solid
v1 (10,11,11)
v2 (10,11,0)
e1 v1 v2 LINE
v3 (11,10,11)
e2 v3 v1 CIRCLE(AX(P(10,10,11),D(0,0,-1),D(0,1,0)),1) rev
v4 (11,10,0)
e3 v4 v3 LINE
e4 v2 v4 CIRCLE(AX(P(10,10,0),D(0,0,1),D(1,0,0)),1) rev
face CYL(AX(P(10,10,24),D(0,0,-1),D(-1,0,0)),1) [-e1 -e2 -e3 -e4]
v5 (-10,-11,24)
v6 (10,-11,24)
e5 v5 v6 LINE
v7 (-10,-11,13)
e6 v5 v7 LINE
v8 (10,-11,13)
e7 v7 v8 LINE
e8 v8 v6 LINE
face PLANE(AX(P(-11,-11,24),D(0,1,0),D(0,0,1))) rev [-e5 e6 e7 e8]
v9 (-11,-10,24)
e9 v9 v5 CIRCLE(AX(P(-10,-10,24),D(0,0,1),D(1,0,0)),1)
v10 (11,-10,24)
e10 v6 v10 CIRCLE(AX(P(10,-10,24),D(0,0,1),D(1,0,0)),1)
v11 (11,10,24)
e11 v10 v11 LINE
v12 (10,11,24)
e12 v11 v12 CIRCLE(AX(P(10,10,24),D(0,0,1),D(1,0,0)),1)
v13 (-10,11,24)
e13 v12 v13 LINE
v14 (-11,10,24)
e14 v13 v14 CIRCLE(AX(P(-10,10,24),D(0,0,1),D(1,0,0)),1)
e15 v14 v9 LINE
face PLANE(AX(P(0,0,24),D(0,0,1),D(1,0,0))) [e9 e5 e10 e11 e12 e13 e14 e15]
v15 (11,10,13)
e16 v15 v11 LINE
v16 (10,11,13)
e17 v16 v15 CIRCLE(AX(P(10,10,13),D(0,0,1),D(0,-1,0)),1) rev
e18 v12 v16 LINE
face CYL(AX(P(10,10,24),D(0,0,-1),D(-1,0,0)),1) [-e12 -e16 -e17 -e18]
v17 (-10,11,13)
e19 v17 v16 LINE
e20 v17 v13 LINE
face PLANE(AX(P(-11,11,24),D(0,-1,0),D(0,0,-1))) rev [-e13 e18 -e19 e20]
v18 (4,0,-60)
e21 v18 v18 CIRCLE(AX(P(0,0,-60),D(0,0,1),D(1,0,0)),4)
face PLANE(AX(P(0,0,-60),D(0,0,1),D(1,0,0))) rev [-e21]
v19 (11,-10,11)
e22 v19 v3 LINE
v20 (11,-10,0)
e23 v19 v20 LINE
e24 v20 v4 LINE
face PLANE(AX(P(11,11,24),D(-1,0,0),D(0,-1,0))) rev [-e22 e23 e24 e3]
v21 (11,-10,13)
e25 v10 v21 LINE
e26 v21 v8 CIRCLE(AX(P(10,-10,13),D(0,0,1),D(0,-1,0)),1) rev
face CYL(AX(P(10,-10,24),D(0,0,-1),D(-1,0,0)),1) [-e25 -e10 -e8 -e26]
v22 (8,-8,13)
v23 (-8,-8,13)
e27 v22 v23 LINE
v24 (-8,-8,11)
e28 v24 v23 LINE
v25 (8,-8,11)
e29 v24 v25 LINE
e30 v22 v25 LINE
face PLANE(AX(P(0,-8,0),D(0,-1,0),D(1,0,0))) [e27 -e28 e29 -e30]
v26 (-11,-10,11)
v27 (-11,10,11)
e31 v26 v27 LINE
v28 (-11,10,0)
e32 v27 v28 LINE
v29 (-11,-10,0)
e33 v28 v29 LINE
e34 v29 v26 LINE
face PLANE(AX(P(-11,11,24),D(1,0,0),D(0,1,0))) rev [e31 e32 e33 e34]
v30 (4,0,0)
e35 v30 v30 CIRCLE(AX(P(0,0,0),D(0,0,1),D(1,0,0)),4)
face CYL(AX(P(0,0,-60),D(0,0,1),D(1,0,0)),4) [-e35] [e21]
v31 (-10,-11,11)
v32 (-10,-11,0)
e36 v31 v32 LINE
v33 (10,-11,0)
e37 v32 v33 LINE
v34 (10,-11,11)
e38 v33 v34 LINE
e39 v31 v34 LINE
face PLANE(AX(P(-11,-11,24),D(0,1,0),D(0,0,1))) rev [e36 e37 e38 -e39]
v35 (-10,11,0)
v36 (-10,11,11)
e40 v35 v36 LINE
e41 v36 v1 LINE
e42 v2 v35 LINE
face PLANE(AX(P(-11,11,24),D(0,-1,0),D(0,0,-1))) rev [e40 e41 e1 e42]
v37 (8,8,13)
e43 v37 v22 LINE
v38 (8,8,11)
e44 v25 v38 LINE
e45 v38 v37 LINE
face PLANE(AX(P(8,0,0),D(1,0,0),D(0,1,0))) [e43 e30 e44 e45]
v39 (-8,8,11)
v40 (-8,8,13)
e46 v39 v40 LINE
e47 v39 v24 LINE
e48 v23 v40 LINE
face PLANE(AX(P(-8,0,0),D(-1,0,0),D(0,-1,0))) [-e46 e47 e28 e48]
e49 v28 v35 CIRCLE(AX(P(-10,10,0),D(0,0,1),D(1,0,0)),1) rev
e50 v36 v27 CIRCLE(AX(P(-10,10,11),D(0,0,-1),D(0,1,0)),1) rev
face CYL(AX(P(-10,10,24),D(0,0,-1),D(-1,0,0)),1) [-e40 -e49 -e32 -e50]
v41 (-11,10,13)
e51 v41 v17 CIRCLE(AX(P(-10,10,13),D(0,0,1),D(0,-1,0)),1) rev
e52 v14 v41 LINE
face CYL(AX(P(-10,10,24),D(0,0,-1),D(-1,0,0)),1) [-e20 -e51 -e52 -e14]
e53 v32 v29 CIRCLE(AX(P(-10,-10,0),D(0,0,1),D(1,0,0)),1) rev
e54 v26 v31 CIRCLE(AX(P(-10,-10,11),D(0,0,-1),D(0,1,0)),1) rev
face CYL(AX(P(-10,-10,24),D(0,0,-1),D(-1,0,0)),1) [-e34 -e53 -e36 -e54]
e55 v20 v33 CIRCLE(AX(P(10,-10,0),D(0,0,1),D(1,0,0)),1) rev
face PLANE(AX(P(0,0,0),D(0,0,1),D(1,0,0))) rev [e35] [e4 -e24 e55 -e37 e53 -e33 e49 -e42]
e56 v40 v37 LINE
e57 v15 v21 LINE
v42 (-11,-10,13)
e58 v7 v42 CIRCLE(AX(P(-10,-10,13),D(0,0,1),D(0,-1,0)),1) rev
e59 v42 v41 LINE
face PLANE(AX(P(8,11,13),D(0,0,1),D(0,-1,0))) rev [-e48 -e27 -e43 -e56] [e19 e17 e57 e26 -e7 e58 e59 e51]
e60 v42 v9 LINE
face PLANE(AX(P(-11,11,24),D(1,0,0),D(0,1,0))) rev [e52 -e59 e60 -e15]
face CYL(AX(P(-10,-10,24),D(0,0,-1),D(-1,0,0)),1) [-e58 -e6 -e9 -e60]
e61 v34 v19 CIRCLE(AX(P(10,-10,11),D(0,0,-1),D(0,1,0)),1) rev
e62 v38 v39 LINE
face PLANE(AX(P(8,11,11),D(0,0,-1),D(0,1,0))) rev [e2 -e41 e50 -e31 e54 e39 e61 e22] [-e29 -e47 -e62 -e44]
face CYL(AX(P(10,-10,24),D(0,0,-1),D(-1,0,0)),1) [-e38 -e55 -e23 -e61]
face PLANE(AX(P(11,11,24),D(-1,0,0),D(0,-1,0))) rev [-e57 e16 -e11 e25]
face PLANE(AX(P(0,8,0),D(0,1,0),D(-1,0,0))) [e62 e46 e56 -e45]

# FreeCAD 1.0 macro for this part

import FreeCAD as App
import Part
import Sketcher
Q = App.Units.Quantity


def edges_at(feature, points):
    """Names of the edges that pass closest to the given points."""
    edges = feature.Shape.Edges
    near = lambda p: min(range(len(edges)), key=lambda i: edges[i].distToShape(Part.Vertex(*p))[0])
    return sorted({f"Edge{near(p) + 1}" for p in points})


def add_polygon(sketch, points):
    """Adds a closed chain of lines whose ends are joined by coincident constraints."""
    first, n = sketch.GeometryCount, len(points)
    for a, b in zip(points, points[1:] + points[:1]):
        sketch.addGeometry(Part.LineSegment(App.Vector(*a, 0), App.Vector(*b, 0)), False)
    for i in range(n):
        sketch.addConstraint(Sketcher.Constraint("Coincident", first + i, 2, first + (i + 1) % n, 1))

doc = App.newDocument("Part")
body = doc.addObject("PartDesign::Body", "Body")

sketch1 = body.newObject("Sketcher::SketchObject", "Sketch")
sketch1.AttachmentSupport = (doc.getObject("XY_Plane"), [""])
sketch1.MapMode = "FlatFace"
add_polygon(sketch1, [(-11, 11), (-11, -11), (11, -11), (11, 11)])
sketch1.addConstraint([
    Sketcher.Constraint("Vertical", 0),
    Sketcher.Constraint("Horizontal", 1),
    Sketcher.Constraint("Vertical", 2),
    Sketcher.Constraint("Horizontal", 3),
    Sketcher.Constraint("Symmetric", 0, 2, 2, 2, -1, 1),
    Sketcher.Constraint("Equal", 3, 0),
    Sketcher.Constraint("DistanceX", 1, 1, 1, 2, Q("22 mm")),
])
pad1 = body.newObject("PartDesign::Pad", "Pad")
pad1.Profile = sketch1
pad1.Length = 24

sketch2 = body.newObject("Sketcher::SketchObject", "Sketch001")
sketch2.AttachmentSupport = (doc.getObject("YZ_Plane"), [""])
sketch2.MapMode = "FlatFace"
sketch2.AttachmentOffset = App.Placement(App.Vector(0, 0, 11), App.Rotation())
add_polygon(sketch2, [(11, 13), (-11, 13), (-11, 11), (11, 11)])
sketch2.addConstraint([
    Sketcher.Constraint("Horizontal", 0),
    Sketcher.Constraint("Vertical", 1),
    Sketcher.Constraint("Horizontal", 2),
    Sketcher.Constraint("Vertical", 3),
    Sketcher.Constraint("DistanceX", 0, 2, 0, 1, Q("22 mm")),
    Sketcher.Constraint("DistanceY", 1, 2, 1, 1, Q("2 mm")),
    Sketcher.Constraint("DistanceX", 0, 2, -1, 1, Q("11 mm")),
    Sketcher.Constraint("DistanceY", -1, 1, 0, 2, Q("13 mm")),
])
pocket1 = body.newObject("PartDesign::Pocket", "Pocket")
pocket1.Profile = sketch2
pocket1.Length = 3
doc.recompute()

polarpattern = body.newObject("PartDesign::PolarPattern", "PolarPattern")
polarpattern.Originals = [pocket1]
polarpattern.Axis = (doc.getObject("Z_Axis"), [""])
polarpattern.Angle = 360
polarpattern.Occurrences = 4
body.Tip = polarpattern
doc.recompute()

fillet = body.newObject("PartDesign::Fillet", "Fillet")
fillet.Base = (polarpattern, edges_at(polarpattern, [
    (11, -11, 5.5),
    (11, 11, 5.5),
    (-11, -11, 5.5),
    (-11, 11, 5.5),
    (11, -11, 18.5),
    (-11, -11, 18.5),
    (-11, 11, 18.5),
    (11, 11, 18.5),
]))
fillet.Radius = 1

sketch3 = body.newObject("Sketcher::SketchObject", "Sketch002")
sketch3.AttachmentSupport = (doc.getObject("XY_Plane"), [""])
sketch3.MapMode = "FlatFace"
sketch3.addGeometry(Part.Circle(App.Vector(0, 0, 0), App.Vector(0, 0, 1), 4), False)
sketch3.addConstraint([
    Sketcher.Constraint("Coincident", 0, 3, -1, 1),
    Sketcher.Constraint("Diameter", 0, Q("8 mm")),
])
pad2 = body.newObject("PartDesign::Pad", "Pad001")
pad2.Profile = sketch3
pad2.Length = 60
pad2.Reversed = True

doc.recompute()
